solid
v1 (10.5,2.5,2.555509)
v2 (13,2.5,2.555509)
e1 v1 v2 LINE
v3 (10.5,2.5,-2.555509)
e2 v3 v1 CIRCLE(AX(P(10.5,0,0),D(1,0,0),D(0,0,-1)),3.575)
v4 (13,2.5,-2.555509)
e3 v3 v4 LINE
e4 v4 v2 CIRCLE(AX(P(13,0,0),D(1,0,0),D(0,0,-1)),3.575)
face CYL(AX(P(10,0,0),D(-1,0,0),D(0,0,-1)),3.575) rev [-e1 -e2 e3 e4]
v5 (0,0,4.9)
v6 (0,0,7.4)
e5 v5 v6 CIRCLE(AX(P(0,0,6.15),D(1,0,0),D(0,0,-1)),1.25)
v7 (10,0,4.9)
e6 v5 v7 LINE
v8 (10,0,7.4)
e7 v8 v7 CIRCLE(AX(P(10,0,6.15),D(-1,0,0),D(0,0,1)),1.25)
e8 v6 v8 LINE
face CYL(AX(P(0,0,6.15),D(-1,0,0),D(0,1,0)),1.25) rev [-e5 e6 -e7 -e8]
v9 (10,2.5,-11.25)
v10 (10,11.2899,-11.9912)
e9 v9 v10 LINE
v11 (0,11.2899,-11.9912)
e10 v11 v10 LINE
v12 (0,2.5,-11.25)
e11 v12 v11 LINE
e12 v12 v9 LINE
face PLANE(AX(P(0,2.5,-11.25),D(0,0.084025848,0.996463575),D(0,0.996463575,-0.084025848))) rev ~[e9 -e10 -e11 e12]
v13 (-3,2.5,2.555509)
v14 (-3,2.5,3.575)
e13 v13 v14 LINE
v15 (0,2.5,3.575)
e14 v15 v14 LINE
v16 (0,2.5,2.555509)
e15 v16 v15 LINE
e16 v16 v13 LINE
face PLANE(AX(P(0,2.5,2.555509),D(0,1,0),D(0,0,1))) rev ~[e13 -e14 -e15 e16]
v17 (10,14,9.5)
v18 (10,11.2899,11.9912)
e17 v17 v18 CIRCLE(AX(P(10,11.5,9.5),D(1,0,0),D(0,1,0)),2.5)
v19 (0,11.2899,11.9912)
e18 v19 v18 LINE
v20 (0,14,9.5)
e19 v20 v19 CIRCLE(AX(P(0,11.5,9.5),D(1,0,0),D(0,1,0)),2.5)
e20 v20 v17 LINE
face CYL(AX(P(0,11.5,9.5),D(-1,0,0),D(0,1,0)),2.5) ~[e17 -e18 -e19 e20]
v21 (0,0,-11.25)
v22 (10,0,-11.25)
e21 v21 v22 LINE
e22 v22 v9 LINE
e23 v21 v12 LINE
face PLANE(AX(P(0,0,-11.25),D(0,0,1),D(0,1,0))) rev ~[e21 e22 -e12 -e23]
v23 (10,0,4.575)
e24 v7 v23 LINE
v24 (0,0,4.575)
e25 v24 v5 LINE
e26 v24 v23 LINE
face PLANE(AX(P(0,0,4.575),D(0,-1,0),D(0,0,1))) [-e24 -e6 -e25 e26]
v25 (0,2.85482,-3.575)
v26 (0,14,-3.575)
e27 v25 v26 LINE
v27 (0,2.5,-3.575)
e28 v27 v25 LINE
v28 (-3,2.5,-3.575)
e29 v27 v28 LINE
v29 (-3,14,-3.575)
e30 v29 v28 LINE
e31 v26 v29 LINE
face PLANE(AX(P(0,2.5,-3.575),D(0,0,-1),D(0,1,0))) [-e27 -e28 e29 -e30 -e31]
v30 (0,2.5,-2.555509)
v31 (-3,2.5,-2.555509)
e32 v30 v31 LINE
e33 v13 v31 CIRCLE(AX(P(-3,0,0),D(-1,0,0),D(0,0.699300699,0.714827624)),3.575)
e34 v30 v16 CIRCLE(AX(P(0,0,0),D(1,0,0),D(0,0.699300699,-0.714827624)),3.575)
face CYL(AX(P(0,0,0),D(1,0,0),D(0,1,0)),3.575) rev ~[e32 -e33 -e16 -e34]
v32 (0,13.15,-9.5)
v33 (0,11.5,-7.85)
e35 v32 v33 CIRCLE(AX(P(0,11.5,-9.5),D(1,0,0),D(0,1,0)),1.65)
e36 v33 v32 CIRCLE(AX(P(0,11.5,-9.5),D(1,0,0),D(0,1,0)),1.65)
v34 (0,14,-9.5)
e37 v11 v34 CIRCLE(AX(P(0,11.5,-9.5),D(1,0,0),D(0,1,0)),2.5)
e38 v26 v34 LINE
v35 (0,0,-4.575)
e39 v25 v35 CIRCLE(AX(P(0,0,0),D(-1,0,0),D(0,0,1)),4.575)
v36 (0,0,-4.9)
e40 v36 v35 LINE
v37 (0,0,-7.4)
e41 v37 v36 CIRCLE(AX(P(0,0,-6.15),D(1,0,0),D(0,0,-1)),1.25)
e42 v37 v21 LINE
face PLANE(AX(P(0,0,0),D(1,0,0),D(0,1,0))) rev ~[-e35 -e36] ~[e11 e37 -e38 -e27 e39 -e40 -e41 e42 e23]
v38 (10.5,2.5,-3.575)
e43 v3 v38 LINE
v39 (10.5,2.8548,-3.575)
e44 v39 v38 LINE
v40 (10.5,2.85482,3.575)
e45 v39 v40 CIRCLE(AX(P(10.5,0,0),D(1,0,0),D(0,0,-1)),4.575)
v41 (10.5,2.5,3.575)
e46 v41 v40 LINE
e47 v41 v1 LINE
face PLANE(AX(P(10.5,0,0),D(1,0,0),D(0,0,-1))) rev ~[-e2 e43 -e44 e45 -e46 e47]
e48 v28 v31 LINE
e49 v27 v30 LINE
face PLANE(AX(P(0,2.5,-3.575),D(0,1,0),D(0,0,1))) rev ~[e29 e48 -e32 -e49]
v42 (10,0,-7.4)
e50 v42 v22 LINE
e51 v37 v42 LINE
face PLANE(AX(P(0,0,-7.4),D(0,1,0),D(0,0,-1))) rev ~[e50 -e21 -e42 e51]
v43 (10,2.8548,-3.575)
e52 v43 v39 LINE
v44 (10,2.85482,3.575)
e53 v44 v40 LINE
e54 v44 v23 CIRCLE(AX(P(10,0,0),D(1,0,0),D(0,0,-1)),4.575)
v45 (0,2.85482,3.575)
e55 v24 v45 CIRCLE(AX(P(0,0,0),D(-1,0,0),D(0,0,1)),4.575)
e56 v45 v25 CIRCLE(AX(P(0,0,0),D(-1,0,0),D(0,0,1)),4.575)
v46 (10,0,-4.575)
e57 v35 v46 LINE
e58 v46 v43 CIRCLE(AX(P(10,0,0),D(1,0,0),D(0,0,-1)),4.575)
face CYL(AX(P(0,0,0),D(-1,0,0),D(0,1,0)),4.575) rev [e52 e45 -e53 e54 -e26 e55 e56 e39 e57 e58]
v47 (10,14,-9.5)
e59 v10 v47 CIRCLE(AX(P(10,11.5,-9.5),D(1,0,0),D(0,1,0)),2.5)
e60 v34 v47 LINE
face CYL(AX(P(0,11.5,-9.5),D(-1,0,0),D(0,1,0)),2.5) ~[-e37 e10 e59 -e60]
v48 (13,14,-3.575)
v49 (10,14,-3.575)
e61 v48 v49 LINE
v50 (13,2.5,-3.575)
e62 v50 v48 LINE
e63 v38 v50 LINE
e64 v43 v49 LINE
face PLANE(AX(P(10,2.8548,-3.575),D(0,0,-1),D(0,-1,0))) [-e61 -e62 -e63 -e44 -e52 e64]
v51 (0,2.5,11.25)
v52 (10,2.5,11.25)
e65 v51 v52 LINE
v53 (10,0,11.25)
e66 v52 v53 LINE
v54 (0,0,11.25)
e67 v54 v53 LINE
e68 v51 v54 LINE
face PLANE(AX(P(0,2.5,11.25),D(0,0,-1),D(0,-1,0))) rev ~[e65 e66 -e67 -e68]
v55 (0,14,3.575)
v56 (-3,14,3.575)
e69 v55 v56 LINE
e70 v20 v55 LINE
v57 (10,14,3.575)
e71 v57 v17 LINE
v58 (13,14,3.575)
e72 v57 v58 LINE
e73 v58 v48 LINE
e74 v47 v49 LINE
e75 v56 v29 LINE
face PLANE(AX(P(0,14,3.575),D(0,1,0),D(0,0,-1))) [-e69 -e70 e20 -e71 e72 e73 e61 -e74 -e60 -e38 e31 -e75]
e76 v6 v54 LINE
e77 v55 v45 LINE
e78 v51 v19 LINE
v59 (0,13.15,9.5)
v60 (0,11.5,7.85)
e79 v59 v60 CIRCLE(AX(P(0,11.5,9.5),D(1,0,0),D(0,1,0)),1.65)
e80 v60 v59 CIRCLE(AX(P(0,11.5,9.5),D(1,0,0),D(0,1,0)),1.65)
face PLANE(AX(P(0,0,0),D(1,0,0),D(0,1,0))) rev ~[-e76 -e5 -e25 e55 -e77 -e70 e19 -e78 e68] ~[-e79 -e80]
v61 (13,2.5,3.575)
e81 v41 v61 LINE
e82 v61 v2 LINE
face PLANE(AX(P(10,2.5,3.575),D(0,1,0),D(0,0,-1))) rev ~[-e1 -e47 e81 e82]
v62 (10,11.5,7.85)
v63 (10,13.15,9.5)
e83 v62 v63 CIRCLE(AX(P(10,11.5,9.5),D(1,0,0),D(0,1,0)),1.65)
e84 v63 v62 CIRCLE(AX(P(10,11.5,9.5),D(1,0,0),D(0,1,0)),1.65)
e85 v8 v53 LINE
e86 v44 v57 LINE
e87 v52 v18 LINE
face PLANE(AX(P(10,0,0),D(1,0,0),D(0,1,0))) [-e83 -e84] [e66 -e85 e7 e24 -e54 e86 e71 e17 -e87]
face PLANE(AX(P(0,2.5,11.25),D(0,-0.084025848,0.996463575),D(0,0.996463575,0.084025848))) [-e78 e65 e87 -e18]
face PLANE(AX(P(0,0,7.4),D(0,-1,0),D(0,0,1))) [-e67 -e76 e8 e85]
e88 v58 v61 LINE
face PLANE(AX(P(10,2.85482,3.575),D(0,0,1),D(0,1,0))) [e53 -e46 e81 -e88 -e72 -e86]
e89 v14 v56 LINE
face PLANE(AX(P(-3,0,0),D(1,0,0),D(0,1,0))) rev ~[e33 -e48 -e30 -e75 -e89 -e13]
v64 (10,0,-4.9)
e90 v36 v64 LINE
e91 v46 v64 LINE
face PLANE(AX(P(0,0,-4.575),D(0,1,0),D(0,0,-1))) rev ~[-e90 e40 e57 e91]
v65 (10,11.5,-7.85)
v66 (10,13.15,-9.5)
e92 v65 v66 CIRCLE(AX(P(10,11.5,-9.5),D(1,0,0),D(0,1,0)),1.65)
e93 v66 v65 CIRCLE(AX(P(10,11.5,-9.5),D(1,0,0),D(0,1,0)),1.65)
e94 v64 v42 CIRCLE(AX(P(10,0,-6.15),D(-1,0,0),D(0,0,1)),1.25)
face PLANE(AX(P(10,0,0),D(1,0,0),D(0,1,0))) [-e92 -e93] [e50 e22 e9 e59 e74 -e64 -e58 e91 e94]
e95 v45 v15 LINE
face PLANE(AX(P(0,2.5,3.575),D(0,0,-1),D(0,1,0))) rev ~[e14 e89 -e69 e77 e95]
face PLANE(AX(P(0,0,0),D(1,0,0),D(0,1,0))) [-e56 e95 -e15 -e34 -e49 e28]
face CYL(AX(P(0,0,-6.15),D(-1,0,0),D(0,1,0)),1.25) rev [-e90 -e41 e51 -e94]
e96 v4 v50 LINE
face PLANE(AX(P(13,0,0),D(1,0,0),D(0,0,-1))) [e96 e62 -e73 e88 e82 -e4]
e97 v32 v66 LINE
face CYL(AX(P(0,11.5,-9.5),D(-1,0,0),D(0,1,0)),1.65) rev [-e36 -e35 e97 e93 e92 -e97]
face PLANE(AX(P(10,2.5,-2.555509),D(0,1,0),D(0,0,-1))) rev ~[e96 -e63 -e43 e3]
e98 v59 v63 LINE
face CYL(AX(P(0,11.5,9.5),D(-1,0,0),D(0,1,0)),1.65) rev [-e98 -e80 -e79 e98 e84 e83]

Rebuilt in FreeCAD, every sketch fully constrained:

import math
import FreeCAD as App
import Part
import Sketcher
Q = App.Units.Quantity

doc = App.newDocument("Part")
body = doc.addObject("PartDesign::Body", "Body")

# Sketch on YZ plane
sketch1 = body.newObject("Sketcher::SketchObject", "Sketch")
sketch1.AttachmentSupport = (doc.getObject("YZ_Plane"), [""])
sketch1.MapMode = "FlatFace"
sketch1.addGeometry([
    Part.LineSegment(App.Vector(0, -4.575, 0), App.Vector(0, -4.9, 0)),  # 0
    Part.ArcOfCircle(Part.Circle(App.Vector(0, -6.15, 0), App.Vector(0, 0, 1), 1.25), math.radians(-90), math.radians(90)),  # 1
    Part.LineSegment(App.Vector(0, -7.4, 0), App.Vector(0, -11.25, 0)),  # 2
    Part.LineSegment(App.Vector(0, -11.25, 0), App.Vector(2.5, -11.25, 0)),  # 3
    Part.LineSegment(App.Vector(2.5, -11.25, 0), App.Vector(11.2899, -11.9912, 0)),  # 4
    Part.ArcOfCircle(Part.Circle(App.Vector(11.5, -9.5, 0), App.Vector(0, 0, 1), 2.5), math.radians(-94.820739), math.radians(0)),  # 5
    Part.LineSegment(App.Vector(14, -9.5, 0), App.Vector(14, 9.5, 0)),  # 6
    Part.ArcOfCircle(Part.Circle(App.Vector(11.5, 9.5, 0), App.Vector(0, 0, 1), 2.5), math.radians(0), math.radians(94.820739)),  # 7
    Part.LineSegment(App.Vector(11.2899, 11.9912, 0), App.Vector(2.5, 11.25, 0)),  # 8
    Part.LineSegment(App.Vector(2.5, 11.25, 0), App.Vector(0, 11.25, 0)),  # 9
    Part.LineSegment(App.Vector(0, 11.25, 0), App.Vector(0, 7.4, 0)),  # 10
    Part.ArcOfCircle(Part.Circle(App.Vector(0, 6.15, 0), App.Vector(0, 0, 1), 1.25), math.radians(-90), math.radians(90)),  # 11
    Part.LineSegment(App.Vector(0, 4.9, 0), App.Vector(0, 4.575, 0)),  # 12
    Part.ArcOfCircle(Part.Circle(App.Vector(0, 0, 0), App.Vector(0, 0, 1), 4.575), math.radians(-90), math.radians(90)),  # 13
    Part.Circle(App.Vector(11.5, -9.5, 0), App.Vector(0, 0, 1), 1.65),  # 14
    Part.Circle(App.Vector(11.5, 9.5, 0), App.Vector(0, 0, 1), 1.65),  # 15
], False)
sketch1.addConstraint([
    Sketcher.Constraint("Coincident", 0, 2, 1, 2),
    Sketcher.Constraint("Coincident", 1, 1, 2, 1),
    Sketcher.Constraint("Coincident", 2, 2, 3, 1),
    Sketcher.Constraint("Coincident", 3, 2, 4, 1),
    Sketcher.Constraint("Tangent", 4, 2, 5, 1),
    Sketcher.Constraint("Tangent", 5, 2, 6, 1),
    Sketcher.Constraint("Tangent", 6, 2, 7, 1),
    Sketcher.Constraint("Tangent", 7, 2, 8, 1),
    Sketcher.Constraint("Coincident", 8, 2, 9, 1),
    Sketcher.Constraint("Coincident", 9, 2, 10, 1),
    Sketcher.Constraint("Coincident", 10, 2, 11, 2),
    Sketcher.Constraint("Coincident", 11, 1, 12, 1),
    Sketcher.Constraint("Coincident", 12, 2, 13, 2),
    Sketcher.Constraint("Coincident", 13, 1, 0, 1),
    Sketcher.Constraint("Vertical", 0),
    Sketcher.Constraint("Vertical", 2),
    Sketcher.Constraint("Horizontal", 3),
    Sketcher.Constraint("Vertical", 6),
    Sketcher.Constraint("Horizontal", 9),
    Sketcher.Constraint("Vertical", 10),
    Sketcher.Constraint("Vertical", 12),
    Sketcher.Constraint("Coincident", 13, 3, -1, 1),
    Sketcher.Constraint("Coincident", 14, 3, 5, 3),
    Sketcher.Constraint("Coincident", 15, 3, 7, 3),
    Sketcher.Constraint("Equal", 5, 7),
    Sketcher.Constraint("Equal", 1, 11),
    Sketcher.Constraint("Equal", 14, 15),
    Sketcher.Constraint("Symmetric", 1, 3, 11, 3, -1, 1),
    Sketcher.Constraint("Symmetric", 2, 2, 9, 2, -1, 1),
    Sketcher.Constraint("Symmetric", 4, 2, 7, 2, -1),
    Sketcher.Constraint("PointOnObject", 1, 3, -2),
    Sketcher.Constraint("PointOnObject", 0, 2, -2),
    Sketcher.Constraint("PointOnObject", 1, 1, -2),
    Sketcher.Constraint("PointOnObject", 11, 1, -2),
    Sketcher.Constraint("Diameter", 14, Q("3.3 mm")),
    Sketcher.Constraint("Radius", 5, Q("2.5 mm")),
    Sketcher.Constraint("DistanceY", 6, 1, 6, 2, Q("19 mm")),
    Sketcher.Constraint("Radius", 1, Q("1.25 mm")),
    Sketcher.Constraint("DistanceX", 3, 1, 3, 2, Q("2.5 mm")),
    Sketcher.Constraint("Radius", 13, Q("4.575 mm")),
    Sketcher.Constraint("DistanceX", -1, 1, 5, 3, Q("11.5 mm")),
    Sketcher.Constraint("DistanceY", 1, 3, 11, 3, Q("12.3 mm")),
    Sketcher.Constraint("DistanceY", 2, 2, -1, 1, Q("11.25 mm")),
])
pad1 = body.newObject("PartDesign::Pad", "Pad")
pad1.Profile = sketch1
pad1.Length = 10

# Sketch on YZ plane
sketch2 = body.newObject("Sketcher::SketchObject", "Sketch001")
sketch2.AttachmentSupport = (doc.getObject("YZ_Plane"), [""])
sketch2.MapMode = "FlatFace"
sketch2.addGeometry([
    Part.ArcOfCircle(Part.Circle(App.Vector(0, 0, 0), App.Vector(0, 0, 1), 3.575), math.radians(-45.629074), math.radians(45.629074)),  # 0
    Part.LineSegment(App.Vector(2.5, -2.555509, 0), App.Vector(2.5, -3.575, 0)),  # 1
    Part.LineSegment(App.Vector(2.5, -3.575, 0), App.Vector(14, -3.575, 0)),  # 2
    Part.LineSegment(App.Vector(14, -3.575, 0), App.Vector(14, 3.575, 0)),  # 3
    Part.LineSegment(App.Vector(14, 3.575, 0), App.Vector(2.5, 3.575, 0)),  # 4
    Part.LineSegment(App.Vector(2.5, 3.575, 0), App.Vector(2.5, 2.555509, 0)),  # 5
], False)
sketch2.addConstraint([
    Sketcher.Constraint("Coincident", 0, 1, 1, 1),
    Sketcher.Constraint("Coincident", 1, 2, 2, 1),
    Sketcher.Constraint("Coincident", 2, 2, 3, 1),
    Sketcher.Constraint("Coincident", 3, 2, 4, 1),
    Sketcher.Constraint("Coincident", 4, 2, 5, 1),
    Sketcher.Constraint("Coincident", 5, 2, 0, 2),
    Sketcher.Constraint("Vertical", 1),
    Sketcher.Constraint("Horizontal", 2),
    Sketcher.Constraint("Vertical", 3),
    Sketcher.Constraint("Horizontal", 4),
    Sketcher.Constraint("Vertical", 5),
    Sketcher.Constraint("Coincident", 0, 3, -1, 1),
    Sketcher.Constraint("Symmetric", 1, 2, 4, 2, -1),
    Sketcher.Constraint("DistanceX", 2, 1, 2, 2, Q("11.5 mm")),
    Sketcher.Constraint("Radius", 0, Q("3.575 mm")),
    Sketcher.Constraint("DistanceY", 3, 1, 3, 2, Q("7.15 mm")),
    Sketcher.Constraint("DistanceX", -1, 1, 0, 1, Q("2.5 mm")),
])
pad2 = body.newObject("PartDesign::Pad", "Pad001")
pad2.Profile = sketch2
pad2.Length = 3
pad2.Reversed = True

# Sketch on YZ plane
sketch3 = body.newObject("Sketcher::SketchObject", "Sketch002")
sketch3.AttachmentSupport = (doc.getObject("YZ_Plane"), [""])
sketch3.MapMode = "FlatFace"
sketch3.AttachmentOffset = App.Placement(App.Vector(0, 0, 10), App.Rotation())
sketch3.addGeometry([
    Part.ArcOfCircle(Part.Circle(App.Vector(0, 0, 0), App.Vector(0, 0, 1), 4.575), math.radians(-51.391044), math.radians(51.390844)),
    Part.LineSegment(App.Vector(2.8548, -3.575, 0), App.Vector(14, -3.575, 0)),
    Part.LineSegment(App.Vector(14, -3.575, 0), App.Vector(14, 3.575, 0)),
    Part.LineSegment(App.Vector(14, 3.575, 0), App.Vector(2.85482, 3.575, 0)),
], False)
sketch3.addConstraint([
    Sketcher.Constraint("Coincident", 0, 1, 1, 1),
    Sketcher.Constraint("Coincident", 1, 2, 2, 1),
    Sketcher.Constraint("Coincident", 2, 2, 3, 1),
    Sketcher.Constraint("Coincident", 3, 2, 0, 2),
    Sketcher.Constraint("Horizontal", 1),
    Sketcher.Constraint("Vertical", 2),
    Sketcher.Constraint("Horizontal", 3),
    Sketcher.Constraint("Coincident", 0, 3, -1, 1),
    Sketcher.Constraint("Vertical", 0, 1, 3, 2),
    Sketcher.Constraint("DistanceX", -1, 1, 1, 2, Q("14 mm")),
    Sketcher.Constraint("Radius", 0, Q("4.575 mm")),
    Sketcher.Constraint("DistanceY", 2, 1, 2, 2, Q("7.15 mm")),
])
pad3 = body.newObject("PartDesign::Pad", "Pad002")
pad3.Profile = sketch3
pad3.Length = 0.5

# Sketch on YZ plane
sketch4 = body.newObject("Sketcher::SketchObject", "Sketch003")
sketch4.AttachmentSupport = (doc.getObject("YZ_Plane"), [""])
sketch4.MapMode = "FlatFace"
sketch4.AttachmentOffset = App.Placement(App.Vector(0, 0, 10), App.Rotation())
sketch4.addGeometry([
    Part.ArcOfCircle(Part.Circle(App.Vector(0, 0, 0), App.Vector(0, 0, 1), 3.575), math.radians(-45.629074), math.radians(45.629074)),  # 0
    Part.LineSegment(App.Vector(2.5, -2.555509, 0), App.Vector(2.5, -3.575, 0)),  # 1
    Part.LineSegment(App.Vector(2.5, -3.575, 0), App.Vector(14, -3.575, 0)),  # 2
    Part.LineSegment(App.Vector(14, -3.575, 0), App.Vector(14, 3.575, 0)),  # 3
    Part.LineSegment(App.Vector(14, 3.575, 0), App.Vector(2.5, 3.575, 0)),  # 4
    Part.LineSegment(App.Vector(2.5, 3.575, 0), App.Vector(2.5, 2.555509, 0)),  # 5
], False)
sketch4.addConstraint([
    Sketcher.Constraint("Coincident", 0, 1, 1, 1),
    Sketcher.Constraint("Coincident", 1, 2, 2, 1),
    Sketcher.Constraint("Coincident", 2, 2, 3, 1),
    Sketcher.Constraint("Coincident", 3, 2, 4, 1),
    Sketcher.Constraint("Coincident", 4, 2, 5, 1),
    Sketcher.Constraint("Coincident", 5, 2, 0, 2),
    Sketcher.Constraint("Vertical", 1),
    Sketcher.Constraint("Horizontal", 2),
    Sketcher.Constraint("Vertical", 3),
    Sketcher.Constraint("Horizontal", 4),
    Sketcher.Constraint("Vertical", 5),
    Sketcher.Constraint("Coincident", 0, 3, -1, 1),
    Sketcher.Constraint("Symmetric", 1, 2, 4, 2, -1),
    Sketcher.Constraint("DistanceX", 2, 1, 2, 2, Q("11.5 mm")),
    Sketcher.Constraint("DistanceX", -1, 1, 2, 2, Q("14 mm")),
    Sketcher.Constraint("Radius", 0, Q("3.575 mm")),
    Sketcher.Constraint("DistanceY", 3, 1, 3, 2, Q("7.15 mm")),
])
pad4 = body.newObject("PartDesign::Pad", "Pad003")
pad4.Profile = sketch4
pad4.Length = 3

# Sketch on YZ plane
sketch5 = body.newObject("Sketcher::SketchObject", "Sketch004")
sketch5.AttachmentSupport = (doc.getObject("YZ_Plane"), [""])
sketch5.MapMode = "FlatFace"
sketch5.AttachmentOffset = App.Placement(App.Vector(0, 0, 10), App.Rotation())
sketch5.addGeometry([
    Part.ArcOfCircle(Part.Circle(App.Vector(0, 0, 0), App.Vector(0, 0, 1), 3.575), math.radians(-45.629074), math.radians(45.629074)),  # 0
    Part.LineSegment(App.Vector(2.5, -2.555509, 0), App.Vector(2.5, -3.575, 0)),  # 1
    Part.LineSegment(App.Vector(2.5, -3.575, 0), App.Vector(2.8548, -3.575, 0)),  # 2
    Part.ArcOfCircle(Part.Circle(App.Vector(0, 0, 0), App.Vector(0, 0, 1), 4.575), math.radians(-51.391044), math.radians(51.390844)),  # 3
    Part.LineSegment(App.Vector(2.85482, 3.575, 0), App.Vector(2.5, 3.575, 0)),  # 4
    Part.LineSegment(App.Vector(2.5, 3.575, 0), App.Vector(2.5, 2.555509, 0)),  # 5
], False)
sketch5.addConstraint([
    Sketcher.Constraint("Coincident", 0, 1, 1, 1),
    Sketcher.Constraint("Coincident", 1, 2, 2, 1),
    Sketcher.Constraint("Coincident", 2, 2, 3, 1),
    Sketcher.Constraint("Coincident", 3, 2, 4, 1),
    Sketcher.Constraint("Coincident", 4, 2, 5, 1),
    Sketcher.Constraint("Coincident", 5, 2, 0, 2),
    Sketcher.Constraint("Vertical", 1),
    Sketcher.Constraint("Horizontal", 2),
    Sketcher.Constraint("Horizontal", 4),
    Sketcher.Constraint("Vertical", 5),
    Sketcher.Constraint("Coincident", 0, 3, -1, 1),
    Sketcher.Constraint("Coincident", 3, 3, -1, 1),
    Sketcher.Constraint("Symmetric", 1, 2, 4, 2, -1),
    Sketcher.Constraint("Radius", 0, Q("3.575 mm")),
    Sketcher.Constraint("Radius", 3, Q("4.575 mm")),
    Sketcher.Constraint("DistanceX", -1, 1, 0, 1, Q("2.5 mm")),
    Sketcher.Constraint("DistanceY", 2, 2, 3, 2, Q("7.15 mm")),
])
pocket1 = body.newObject("PartDesign::Pocket", "Pocket")
pocket1.Profile = sketch5
pocket1.Length = 0.5
pocket1.Reversed = True

doc.recompute()
